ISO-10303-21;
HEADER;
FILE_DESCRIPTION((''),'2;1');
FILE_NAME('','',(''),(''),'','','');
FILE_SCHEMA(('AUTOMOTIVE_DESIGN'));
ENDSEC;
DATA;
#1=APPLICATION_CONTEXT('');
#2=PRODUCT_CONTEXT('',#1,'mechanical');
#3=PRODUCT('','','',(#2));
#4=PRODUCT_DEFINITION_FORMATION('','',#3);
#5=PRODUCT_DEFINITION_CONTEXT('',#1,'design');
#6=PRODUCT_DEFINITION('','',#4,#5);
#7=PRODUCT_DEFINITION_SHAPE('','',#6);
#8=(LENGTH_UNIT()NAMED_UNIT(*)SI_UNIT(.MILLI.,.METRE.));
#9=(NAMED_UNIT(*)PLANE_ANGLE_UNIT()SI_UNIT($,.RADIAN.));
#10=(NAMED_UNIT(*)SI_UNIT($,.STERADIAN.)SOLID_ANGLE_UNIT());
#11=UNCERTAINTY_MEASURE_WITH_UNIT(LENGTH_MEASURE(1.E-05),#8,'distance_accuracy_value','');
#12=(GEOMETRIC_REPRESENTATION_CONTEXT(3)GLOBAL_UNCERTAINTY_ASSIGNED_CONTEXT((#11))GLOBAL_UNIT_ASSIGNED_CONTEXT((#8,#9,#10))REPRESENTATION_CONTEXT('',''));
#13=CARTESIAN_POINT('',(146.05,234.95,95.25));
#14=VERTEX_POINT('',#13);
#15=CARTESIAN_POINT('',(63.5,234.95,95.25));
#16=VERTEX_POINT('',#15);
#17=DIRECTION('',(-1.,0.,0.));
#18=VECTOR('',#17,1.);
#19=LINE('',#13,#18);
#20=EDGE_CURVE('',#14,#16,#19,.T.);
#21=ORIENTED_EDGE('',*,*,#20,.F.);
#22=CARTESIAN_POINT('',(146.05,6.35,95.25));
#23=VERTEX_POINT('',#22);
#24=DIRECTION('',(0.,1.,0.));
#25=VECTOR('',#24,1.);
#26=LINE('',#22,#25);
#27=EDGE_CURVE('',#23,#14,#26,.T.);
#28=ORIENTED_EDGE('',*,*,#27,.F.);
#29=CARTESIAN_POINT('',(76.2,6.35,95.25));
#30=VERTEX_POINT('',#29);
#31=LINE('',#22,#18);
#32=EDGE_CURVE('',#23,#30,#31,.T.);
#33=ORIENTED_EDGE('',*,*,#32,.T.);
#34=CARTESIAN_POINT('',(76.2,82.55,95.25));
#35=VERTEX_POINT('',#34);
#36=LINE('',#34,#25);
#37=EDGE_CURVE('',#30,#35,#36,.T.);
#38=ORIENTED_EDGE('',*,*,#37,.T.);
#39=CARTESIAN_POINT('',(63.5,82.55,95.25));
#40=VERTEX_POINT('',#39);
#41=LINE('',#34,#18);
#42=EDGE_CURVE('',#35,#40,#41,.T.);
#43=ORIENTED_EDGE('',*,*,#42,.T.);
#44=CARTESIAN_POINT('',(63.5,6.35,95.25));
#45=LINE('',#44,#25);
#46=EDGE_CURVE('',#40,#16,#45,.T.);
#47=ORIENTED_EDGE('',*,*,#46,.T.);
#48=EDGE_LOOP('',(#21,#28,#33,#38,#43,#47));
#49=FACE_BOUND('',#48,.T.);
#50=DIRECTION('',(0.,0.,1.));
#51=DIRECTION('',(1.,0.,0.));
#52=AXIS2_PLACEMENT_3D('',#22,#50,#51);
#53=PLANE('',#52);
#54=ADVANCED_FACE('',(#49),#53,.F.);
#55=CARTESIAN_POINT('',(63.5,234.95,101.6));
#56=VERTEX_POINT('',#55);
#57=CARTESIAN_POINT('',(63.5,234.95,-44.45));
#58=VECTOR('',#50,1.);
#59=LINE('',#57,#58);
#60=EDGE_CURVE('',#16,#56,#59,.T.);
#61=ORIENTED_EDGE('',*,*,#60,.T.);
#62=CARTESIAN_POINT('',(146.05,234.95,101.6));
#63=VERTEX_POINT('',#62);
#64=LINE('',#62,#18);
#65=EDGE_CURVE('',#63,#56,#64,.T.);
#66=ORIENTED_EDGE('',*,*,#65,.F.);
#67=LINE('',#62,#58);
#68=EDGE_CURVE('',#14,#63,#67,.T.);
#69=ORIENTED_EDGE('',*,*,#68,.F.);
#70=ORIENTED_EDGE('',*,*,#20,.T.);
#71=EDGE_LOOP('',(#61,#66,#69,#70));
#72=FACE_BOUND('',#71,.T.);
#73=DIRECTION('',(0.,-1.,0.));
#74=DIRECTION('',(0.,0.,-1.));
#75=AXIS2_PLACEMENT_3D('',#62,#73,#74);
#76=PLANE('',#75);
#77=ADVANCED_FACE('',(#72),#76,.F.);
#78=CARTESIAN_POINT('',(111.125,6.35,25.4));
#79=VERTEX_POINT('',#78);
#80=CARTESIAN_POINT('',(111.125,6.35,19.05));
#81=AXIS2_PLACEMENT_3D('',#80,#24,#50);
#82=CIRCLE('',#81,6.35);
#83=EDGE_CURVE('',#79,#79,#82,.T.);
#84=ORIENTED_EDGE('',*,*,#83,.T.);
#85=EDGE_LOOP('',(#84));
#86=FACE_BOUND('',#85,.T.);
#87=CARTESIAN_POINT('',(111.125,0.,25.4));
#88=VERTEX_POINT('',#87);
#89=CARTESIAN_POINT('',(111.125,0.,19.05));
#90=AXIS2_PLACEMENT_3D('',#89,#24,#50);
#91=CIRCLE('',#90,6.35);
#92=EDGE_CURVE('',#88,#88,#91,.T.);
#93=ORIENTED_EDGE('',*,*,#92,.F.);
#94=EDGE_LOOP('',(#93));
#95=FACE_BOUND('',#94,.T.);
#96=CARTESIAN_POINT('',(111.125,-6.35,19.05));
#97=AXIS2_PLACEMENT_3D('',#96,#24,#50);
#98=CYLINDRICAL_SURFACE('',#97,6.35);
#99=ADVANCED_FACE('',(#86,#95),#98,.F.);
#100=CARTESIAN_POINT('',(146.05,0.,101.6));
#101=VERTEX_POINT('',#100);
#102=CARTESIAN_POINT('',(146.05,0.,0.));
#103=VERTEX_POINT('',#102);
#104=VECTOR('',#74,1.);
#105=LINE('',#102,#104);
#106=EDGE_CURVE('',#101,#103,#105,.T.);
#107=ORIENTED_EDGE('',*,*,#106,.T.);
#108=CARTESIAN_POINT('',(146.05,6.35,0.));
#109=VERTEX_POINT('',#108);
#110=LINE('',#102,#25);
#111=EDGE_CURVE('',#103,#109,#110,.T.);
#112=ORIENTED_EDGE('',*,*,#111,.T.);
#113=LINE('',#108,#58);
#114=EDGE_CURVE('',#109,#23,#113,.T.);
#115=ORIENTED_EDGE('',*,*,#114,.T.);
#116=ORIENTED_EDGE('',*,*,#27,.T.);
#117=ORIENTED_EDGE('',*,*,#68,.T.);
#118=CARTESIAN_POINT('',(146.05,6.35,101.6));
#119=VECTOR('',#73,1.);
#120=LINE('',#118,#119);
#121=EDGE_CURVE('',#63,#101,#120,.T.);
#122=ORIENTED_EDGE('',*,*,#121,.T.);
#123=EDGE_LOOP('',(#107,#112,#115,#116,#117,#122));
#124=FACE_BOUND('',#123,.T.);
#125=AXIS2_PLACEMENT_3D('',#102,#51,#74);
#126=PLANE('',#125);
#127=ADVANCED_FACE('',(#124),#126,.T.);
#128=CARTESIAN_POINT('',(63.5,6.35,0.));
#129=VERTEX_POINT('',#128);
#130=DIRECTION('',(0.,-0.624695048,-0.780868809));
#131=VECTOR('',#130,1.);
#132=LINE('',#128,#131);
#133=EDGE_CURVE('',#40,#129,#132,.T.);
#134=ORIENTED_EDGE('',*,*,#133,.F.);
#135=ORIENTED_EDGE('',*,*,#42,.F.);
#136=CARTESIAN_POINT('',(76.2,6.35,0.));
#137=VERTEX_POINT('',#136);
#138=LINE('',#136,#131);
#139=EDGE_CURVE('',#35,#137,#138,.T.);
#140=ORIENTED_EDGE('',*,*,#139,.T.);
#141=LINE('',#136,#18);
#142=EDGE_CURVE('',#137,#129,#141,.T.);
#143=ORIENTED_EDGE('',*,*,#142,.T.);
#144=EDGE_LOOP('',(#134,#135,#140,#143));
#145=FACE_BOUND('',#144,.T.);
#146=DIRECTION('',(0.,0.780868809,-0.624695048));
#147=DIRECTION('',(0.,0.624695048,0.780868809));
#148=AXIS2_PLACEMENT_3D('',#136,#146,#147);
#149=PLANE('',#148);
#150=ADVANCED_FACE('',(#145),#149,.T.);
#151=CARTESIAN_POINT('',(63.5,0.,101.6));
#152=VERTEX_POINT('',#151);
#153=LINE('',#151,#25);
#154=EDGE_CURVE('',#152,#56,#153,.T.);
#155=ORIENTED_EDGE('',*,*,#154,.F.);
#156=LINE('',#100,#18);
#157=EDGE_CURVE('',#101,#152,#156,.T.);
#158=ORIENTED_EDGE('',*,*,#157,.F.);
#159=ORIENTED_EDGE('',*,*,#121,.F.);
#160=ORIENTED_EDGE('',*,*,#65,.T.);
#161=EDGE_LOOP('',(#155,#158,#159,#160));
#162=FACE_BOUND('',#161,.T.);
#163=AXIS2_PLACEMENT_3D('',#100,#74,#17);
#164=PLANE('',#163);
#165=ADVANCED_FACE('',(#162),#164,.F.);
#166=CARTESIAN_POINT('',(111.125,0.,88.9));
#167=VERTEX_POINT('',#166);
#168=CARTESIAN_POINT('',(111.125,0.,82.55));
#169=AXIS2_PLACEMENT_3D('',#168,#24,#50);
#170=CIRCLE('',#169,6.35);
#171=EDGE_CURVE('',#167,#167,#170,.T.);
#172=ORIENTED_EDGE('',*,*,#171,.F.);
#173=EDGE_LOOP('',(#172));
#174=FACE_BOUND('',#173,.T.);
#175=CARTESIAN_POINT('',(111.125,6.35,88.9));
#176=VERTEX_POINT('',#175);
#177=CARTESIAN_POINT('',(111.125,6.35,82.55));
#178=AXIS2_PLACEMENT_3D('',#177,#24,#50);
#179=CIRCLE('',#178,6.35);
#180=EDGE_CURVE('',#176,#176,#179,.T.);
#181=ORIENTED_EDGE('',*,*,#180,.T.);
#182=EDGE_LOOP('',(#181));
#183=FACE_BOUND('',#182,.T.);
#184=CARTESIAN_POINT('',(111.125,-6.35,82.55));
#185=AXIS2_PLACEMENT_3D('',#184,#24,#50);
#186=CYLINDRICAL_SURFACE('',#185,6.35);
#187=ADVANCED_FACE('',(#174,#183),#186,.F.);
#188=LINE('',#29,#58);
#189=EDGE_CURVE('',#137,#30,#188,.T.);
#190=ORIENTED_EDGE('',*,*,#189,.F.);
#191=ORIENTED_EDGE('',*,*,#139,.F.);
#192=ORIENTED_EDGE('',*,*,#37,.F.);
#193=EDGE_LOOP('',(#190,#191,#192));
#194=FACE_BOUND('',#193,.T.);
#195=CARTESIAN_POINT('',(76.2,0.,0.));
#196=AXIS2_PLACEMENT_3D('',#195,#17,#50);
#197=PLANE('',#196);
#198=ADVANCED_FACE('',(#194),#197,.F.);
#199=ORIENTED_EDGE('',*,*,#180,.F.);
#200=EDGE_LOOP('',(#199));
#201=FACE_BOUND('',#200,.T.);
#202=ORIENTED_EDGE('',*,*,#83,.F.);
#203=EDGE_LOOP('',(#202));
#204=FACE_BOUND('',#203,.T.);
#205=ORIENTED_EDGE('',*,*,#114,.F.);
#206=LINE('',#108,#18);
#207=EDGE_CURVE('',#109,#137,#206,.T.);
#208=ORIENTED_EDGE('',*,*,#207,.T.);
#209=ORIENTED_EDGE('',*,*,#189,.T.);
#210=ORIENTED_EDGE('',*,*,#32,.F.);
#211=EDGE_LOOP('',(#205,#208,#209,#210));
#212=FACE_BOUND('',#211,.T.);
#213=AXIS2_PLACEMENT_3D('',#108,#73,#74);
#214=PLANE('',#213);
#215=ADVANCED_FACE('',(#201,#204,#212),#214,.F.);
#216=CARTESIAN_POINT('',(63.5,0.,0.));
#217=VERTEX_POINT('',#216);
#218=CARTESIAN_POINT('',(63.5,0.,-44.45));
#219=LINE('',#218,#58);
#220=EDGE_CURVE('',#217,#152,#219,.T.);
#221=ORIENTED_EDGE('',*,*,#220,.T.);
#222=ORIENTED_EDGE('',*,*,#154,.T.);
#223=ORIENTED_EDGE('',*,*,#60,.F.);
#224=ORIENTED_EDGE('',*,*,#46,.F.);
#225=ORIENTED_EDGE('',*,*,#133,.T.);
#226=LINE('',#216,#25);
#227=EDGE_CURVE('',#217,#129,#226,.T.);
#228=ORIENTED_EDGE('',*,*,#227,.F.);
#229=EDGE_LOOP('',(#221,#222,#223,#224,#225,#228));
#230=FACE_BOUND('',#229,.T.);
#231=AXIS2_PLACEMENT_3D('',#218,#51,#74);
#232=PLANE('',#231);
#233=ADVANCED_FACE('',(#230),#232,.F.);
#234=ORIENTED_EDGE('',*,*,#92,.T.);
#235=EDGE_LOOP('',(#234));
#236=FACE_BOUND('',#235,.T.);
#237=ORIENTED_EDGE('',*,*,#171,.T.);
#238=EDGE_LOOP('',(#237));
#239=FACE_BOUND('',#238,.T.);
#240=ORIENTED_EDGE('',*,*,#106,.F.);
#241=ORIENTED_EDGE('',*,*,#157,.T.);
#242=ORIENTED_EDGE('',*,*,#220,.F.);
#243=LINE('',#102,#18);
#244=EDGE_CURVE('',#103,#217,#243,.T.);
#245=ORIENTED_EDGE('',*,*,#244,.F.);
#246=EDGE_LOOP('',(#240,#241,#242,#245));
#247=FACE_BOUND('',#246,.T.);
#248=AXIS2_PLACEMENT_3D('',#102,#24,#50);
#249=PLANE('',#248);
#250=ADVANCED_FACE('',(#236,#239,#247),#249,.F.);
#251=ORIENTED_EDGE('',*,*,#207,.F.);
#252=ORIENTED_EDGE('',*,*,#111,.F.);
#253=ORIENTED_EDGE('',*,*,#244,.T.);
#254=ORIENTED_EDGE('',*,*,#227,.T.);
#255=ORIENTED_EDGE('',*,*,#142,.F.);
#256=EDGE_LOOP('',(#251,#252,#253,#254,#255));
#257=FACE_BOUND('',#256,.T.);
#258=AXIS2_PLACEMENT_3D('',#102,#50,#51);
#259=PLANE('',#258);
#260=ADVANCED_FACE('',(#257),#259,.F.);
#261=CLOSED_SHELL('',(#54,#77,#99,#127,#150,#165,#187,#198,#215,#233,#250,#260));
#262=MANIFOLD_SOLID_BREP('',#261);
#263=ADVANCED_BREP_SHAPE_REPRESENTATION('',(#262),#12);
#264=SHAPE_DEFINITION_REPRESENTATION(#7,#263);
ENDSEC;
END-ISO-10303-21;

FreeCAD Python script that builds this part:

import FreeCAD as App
import Part
import Sketcher

V = App.Vector
Q = App.Units.Quantity


def add_polygon(sketch, points):
    """Adds a closed chain of lines whose ends are joined by coincident constraints."""
    first, n = sketch.GeometryCount, len(points)
    for a, b in zip(points, points[1:] + points[:1]):
        sketch.addGeometry(Part.LineSegment(App.Vector(*a, 0), App.Vector(*b, 0)), False)
    for i in range(n):
        sketch.addConstraint(Sketcher.Constraint("Coincident", first + i, 2, first + (i + 1) % n, 1))

doc = App.newDocument("Part")
params = doc.addObject("Spreadsheet::Sheet", "Params")
for row, (alias, value) in enumerate([
    ("sketch1_width", "9 in"),
    ("sketch1_height", "4 in"),
    ("sketch1_width2", "0.25 in"),
    ("pad1_length", "5.75 in"),
    ("sketch2_width", "2.5 in"),
    ("sketch2_height", "9.25 in"),
    ("pocket1_length", "5.75 in"),
    ("sketch3_width", "3 in"),
    ("sketch3_height", "3.75 in"),
    ("pad2_length", "0.5 in"),
    ("sketch4_diameter", "0.5 in"),
    ("pocket2_length", "0.5 in"),
], start=1):
    params.set(f"A{row}", alias)
    params.set(f"B{row}", "=" + value)
    params.setAlias(f"B{row}", alias)

body = doc.addObject("PartDesign::Body", "Body")

sketch1 = body.newObject("Sketcher::SketchObject", "Sketch")
sketch1.AttachmentSupport = (doc.getObject("YZ_Plane"), [""])
sketch1.MapMode = "FlatFace"
add_polygon(sketch1, [(0, 101.6), (0, 0), (6.35, 0), (6.35, 95.25), (234.95, 95.25), (234.95, 101.6)])
sketch1.addConstraint(Sketcher.Constraint("Vertical", 0))
sketch1.addConstraint(Sketcher.Constraint("Horizontal", 1))
sketch1.addConstraint(Sketcher.Constraint("Vertical", 2))
sketch1.addConstraint(Sketcher.Constraint("Horizontal", 3))
sketch1.addConstraint(Sketcher.Constraint("Vertical", 4))
sketch1.addConstraint(Sketcher.Constraint("Horizontal", 5))
sketch1.addConstraint(Sketcher.Constraint("Coincident", 0, 2, -1, 1))
sketch1.addConstraint(Sketcher.Constraint("Equal", 1, 4))
sketch1.addConstraint(Sketcher.Constraint("DistanceX", 3, 1, 3, 2, Q("9 in")))
sketch1.addConstraint(Sketcher.Constraint("DistanceY", 0, 2, 0, 1, Q("4 in")))
sketch1.addConstraint(Sketcher.Constraint("DistanceX", 1, 1, 1, 2, Q("0.25 in")))
sketch1.setExpression("Constraints[14]", "Params.sketch1_width")
sketch1.setExpression("Constraints[15]", "Params.sketch1_height")
sketch1.setExpression("Constraints[16]", "Params.sketch1_width2")
pad1 = body.newObject("PartDesign::Pad", "Pad")
pad1.Profile = sketch1
pad1.setExpression("Length", "Params.pad1_length")

sketch2 = body.newObject("Sketcher::SketchObject", "Sketch001")
sketch2.AttachmentSupport = (doc.getObject("XY_Plane"), [""])
sketch2.MapMode = "FlatFace"
sketch2.AttachmentOffset = App.Placement(V(0, 0, 4 * 25.4), App.Rotation())
add_polygon(sketch2, [(0, 234.95), (0, 0), (63.5, 0), (63.5, 234.95)])
sketch2.addConstraint(Sketcher.Constraint("Vertical", 0))
sketch2.addConstraint(Sketcher.Constraint("Horizontal", 1))
sketch2.addConstraint(Sketcher.Constraint("Vertical", 2))
sketch2.addConstraint(Sketcher.Constraint("Horizontal", 3))
sketch2.addConstraint(Sketcher.Constraint("Coincident", 0, 2, -1, 1))
sketch2.addConstraint(Sketcher.Constraint("DistanceX", 1, 1, 1, 2, Q("2.5 in")))
sketch2.addConstraint(Sketcher.Constraint("DistanceY", 0, 2, 0, 1, Q("9.25 in")))
sketch2.setExpression("Constraints[9]", "Params.sketch2_width")
sketch2.setExpression("Constraints[10]", "Params.sketch2_height")
pocket1 = body.newObject("PartDesign::Pocket", "Pocket")
pocket1.Profile = sketch2
pocket1.setExpression("Length", "Params.pocket1_length")

sketch3 = body.newObject("Sketcher::SketchObject", "Sketch002")
sketch3.AttachmentSupport = (doc.getObject("YZ_Plane"), [""])
sketch3.MapMode = "FlatFace"
sketch3.AttachmentOffset = App.Placement(V(0, 0, 2.5 * 25.4), App.Rotation())
add_polygon(sketch3, [(82.55, 95.25), (6.35, 0), (6.35, 95.25)])
sketch3.addConstraint(Sketcher.Constraint("Vertical", 1))
sketch3.addConstraint(Sketcher.Constraint("Horizontal", 2))
sketch3.addConstraint(Sketcher.Constraint("PointOnObject", 0, 2, -1))
sketch3.addConstraint(Sketcher.Constraint("DistanceX", 2, 1, 2, 2, Q("3 in")))
sketch3.addConstraint(Sketcher.Constraint("DistanceY", 1, 1, 1, 2, Q("3.75 in")))
sketch3.addConstraint(Sketcher.Constraint("DistanceX", -1, 1, 0, 2, Q("0.25 in")))
sketch3.setExpression("Constraints[6]", "Params.sketch3_width")
sketch3.setExpression("Constraints[7]", "Params.sketch3_height")
pad2 = body.newObject("PartDesign::Pad", "Pad001")
pad2.Profile = sketch3
pad2.setExpression("Length", "Params.pad2_length")

sketch4 = body.newObject("Sketcher::SketchObject", "Sketch003")
sketch4.AttachmentSupport = (doc.getObject("XZ_Plane"), [""])
sketch4.MapMode = "FlatFace"
sketch4.AttachmentOffset = App.Placement(V(0, 0, -0.25 * 25.4), App.Rotation())
sketch4.addGeometry(Part.Circle(V(111.125, 19.05, 0), V(0, 0, 1), 6.35), False)
sketch4.addGeometry(Part.Circle(V(111.125, 82.55, 0), V(0, 0, 1), 6.35), False)
sketch4.addConstraint(Sketcher.Constraint("Equal", 0, 1))
sketch4.addConstraint(Sketcher.Constraint("Vertical", 0, 3, 1, 3))
sketch4.addConstraint(Sketcher.Constraint("Diameter", 0, Q("0.5 in")))
sketch4.addConstraint(Sketcher.Constraint("DistanceY", 0, 3, 1, 3, Q("2.5 in")))
sketch4.addConstraint(Sketcher.Constraint("DistanceY", -1, 1, 0, 3, Q("0.75 in")))
sketch4.addConstraint(Sketcher.Constraint("DistanceX", -1, 1, 0, 3, Q("4.375 in")))
sketch4.setExpression("Constraints[2]", "Params.sketch4_diameter")
pocket2 = body.newObject("PartDesign::Pocket", "Pocket001")
pocket2.Profile = sketch4
pocket2.setExpression("Length", "Params.pocket2_length")
pocket2.Reversed = True

doc.recompute()
